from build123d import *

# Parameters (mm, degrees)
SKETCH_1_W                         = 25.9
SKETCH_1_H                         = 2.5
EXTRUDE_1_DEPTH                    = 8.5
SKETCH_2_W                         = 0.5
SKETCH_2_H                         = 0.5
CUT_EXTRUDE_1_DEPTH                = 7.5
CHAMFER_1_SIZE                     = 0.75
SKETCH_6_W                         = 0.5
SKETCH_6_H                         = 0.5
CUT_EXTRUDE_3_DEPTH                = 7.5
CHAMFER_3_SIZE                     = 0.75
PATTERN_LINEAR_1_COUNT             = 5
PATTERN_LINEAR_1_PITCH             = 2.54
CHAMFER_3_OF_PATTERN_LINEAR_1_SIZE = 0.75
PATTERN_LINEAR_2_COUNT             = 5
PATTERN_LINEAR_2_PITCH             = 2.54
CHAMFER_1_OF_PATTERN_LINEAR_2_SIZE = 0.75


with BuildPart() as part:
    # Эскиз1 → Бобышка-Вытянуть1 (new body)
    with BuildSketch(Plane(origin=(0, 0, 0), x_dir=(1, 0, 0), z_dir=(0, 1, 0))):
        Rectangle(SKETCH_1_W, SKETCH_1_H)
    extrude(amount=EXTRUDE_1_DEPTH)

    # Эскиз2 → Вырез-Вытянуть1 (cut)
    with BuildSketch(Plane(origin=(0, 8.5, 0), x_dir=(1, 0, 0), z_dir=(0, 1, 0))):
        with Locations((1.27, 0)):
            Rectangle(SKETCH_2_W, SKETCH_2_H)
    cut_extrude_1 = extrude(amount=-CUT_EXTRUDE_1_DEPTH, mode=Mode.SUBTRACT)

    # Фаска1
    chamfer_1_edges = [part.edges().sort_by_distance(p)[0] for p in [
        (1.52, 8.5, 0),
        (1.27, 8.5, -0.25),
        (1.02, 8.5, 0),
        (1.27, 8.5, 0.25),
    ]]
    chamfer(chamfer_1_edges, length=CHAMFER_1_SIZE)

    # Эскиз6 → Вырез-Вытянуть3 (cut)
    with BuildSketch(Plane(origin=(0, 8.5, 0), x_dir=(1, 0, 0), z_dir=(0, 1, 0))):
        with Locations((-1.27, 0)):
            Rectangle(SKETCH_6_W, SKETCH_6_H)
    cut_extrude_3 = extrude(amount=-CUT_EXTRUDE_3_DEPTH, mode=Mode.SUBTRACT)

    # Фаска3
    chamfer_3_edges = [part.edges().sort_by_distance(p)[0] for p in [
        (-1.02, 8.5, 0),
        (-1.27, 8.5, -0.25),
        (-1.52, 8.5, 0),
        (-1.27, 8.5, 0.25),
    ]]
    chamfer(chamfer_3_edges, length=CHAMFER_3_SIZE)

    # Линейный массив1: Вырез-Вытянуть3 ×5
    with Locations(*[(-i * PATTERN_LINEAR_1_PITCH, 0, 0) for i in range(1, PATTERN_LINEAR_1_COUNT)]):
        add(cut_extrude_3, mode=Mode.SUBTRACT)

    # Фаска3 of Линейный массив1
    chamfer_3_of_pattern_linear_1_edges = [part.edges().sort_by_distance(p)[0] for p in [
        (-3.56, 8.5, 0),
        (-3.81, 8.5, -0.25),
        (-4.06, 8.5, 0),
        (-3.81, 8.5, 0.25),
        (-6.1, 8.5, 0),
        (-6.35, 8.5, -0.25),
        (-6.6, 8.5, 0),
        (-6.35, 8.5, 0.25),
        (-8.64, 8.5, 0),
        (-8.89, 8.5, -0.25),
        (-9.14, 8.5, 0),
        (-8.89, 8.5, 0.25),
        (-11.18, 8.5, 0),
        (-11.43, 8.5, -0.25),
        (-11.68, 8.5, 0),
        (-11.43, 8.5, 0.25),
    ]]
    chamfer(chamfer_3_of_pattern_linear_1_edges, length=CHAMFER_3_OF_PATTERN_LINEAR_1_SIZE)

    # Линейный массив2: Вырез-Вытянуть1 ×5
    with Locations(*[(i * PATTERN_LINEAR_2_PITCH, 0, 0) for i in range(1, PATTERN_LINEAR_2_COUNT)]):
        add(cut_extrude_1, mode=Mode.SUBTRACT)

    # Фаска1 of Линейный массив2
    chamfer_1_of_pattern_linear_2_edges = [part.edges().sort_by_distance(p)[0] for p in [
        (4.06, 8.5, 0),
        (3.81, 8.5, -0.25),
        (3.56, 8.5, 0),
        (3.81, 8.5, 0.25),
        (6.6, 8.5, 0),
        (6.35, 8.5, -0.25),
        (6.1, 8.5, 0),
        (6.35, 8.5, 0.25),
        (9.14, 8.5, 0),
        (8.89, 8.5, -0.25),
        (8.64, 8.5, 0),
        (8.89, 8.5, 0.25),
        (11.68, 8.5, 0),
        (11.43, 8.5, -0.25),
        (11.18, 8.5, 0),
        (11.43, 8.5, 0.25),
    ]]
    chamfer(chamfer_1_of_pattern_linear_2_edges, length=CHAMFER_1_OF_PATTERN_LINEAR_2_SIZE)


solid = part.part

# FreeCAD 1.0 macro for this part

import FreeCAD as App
import Part
import Sketcher
from FreeCAD import Vector


def edges_at(feature, points):
    """Names of the edges that pass closest to the given points."""
    edges = feature.Shape.Edges
    near = lambda p: min(range(len(edges)), key=lambda i: edges[i].distToShape(Part.Vertex(*p))[0])
    return sorted({f"Edge{near(p) + 1}" for p in points})


def add_polygon(sketch, points):
    """Adds a closed chain of lines whose ends are joined by coincident constraints."""
    first, n = sketch.GeometryCount, len(points)
    for a, b in zip(points, points[1:] + points[:1]):
        sketch.addGeometry(Part.LineSegment(App.Vector(*a, 0), App.Vector(*b, 0)), False)
    for i in range(n):
        sketch.addConstraint(Sketcher.Constraint("Coincident", first + i, 2, first + (i + 1) % n, 1))

doc = App.newDocument("Part")
params = doc.addObject("Spreadsheet::Sheet", "Params")
for row, (alias, value) in enumerate([
    ("sketch1_width", "25.9 mm"),
    ("sketch1_height", "2.5 mm"),
    ("pad1_length", "8.5 mm"),
    ("sketch2_width", "0.5 mm"),
    ("pocket1_length", "7.5 mm"),
    ("chamfer_size", "0.75 mm"),
    ("sketch3_width", "0.5 mm"),
    ("pocket2_length", "7.5 mm"),
    ("chamfer2_size", "0.75 mm"),
    ("linearpattern_pitch", "2.54 mm"),
    ("chamfer3_size", "0.75 mm"),
    ("linearpattern2_pitch", "2.54 mm"),
    ("chamfer4_size", "0.75 mm"),
], start=1):
    params.set(f"A{row}", alias)
    params.set(f"B{row}", "=" + value)
    params.setAlias(f"B{row}", alias)

body = doc.addObject("PartDesign::Body", "Body")

sketch1 = body.newObject("Sketcher::SketchObject", "Sketch")
sketch1.AttachmentSupport = (doc.getObject("XZ_Plane"), [""])
sketch1.MapMode = "FlatFace"
add_polygon(sketch1, [(-12.95, -1.25), (-12.95, 1.25), (12.95, 1.25), (12.95, -1.25)])
sketch1.addConstraint([
    Sketcher.Constraint("Vertical", 0),
    Sketcher.Constraint("Horizontal", 1),
    Sketcher.Constraint("Vertical", 2),
    Sketcher.Constraint("Horizontal", 3),
    Sketcher.Constraint("Symmetric", 0, 2, 2, 2, -1, 1),
    Sketcher.Constraint("DistanceX", 1, 1, 1, 2, 25.9),
    Sketcher.Constraint("DistanceY", 0, 1, 0, 2, 2.5),
])
sketch1.setExpression("Constraints[9]", "Params.sketch1_width")
sketch1.setExpression("Constraints[10]", "Params.sketch1_height")
pad1 = body.newObject("PartDesign::Pad", "Pad")
pad1.Profile = sketch1
pad1.setExpression("Length", "Params.pad1_length")
pad1.Reversed = True

sketch2 = body.newObject("Sketcher::SketchObject", "Sketch001")
sketch2.AttachmentSupport = (doc.getObject("XZ_Plane"), [""])
sketch2.MapMode = "FlatFace"
sketch2.AttachmentOffset = App.Placement(Vector(0, 0, -8.5), App.Rotation())
add_polygon(sketch2, [(1.02, -0.25), (1.02, 0.25), (1.52, 0.25), (1.52, -0.25)])
sketch2.addConstraint([
    Sketcher.Constraint("Vertical", 0),
    Sketcher.Constraint("Horizontal", 1),
    Sketcher.Constraint("Vertical", 2),
    Sketcher.Constraint("Horizontal", 3),
    Sketcher.Constraint("Equal", 3, 0),
    Sketcher.Constraint("DistanceX", 1, 1, 1, 2, 0.5),
    Sketcher.Constraint("DistanceX", -1, 1, 0, 2, 1.02),
    Sketcher.Constraint("DistanceY", -1, 1, 0, 2, 0.25),
])
sketch2.setExpression("Constraints[9]", "Params.sketch2_width")
pocket1 = body.newObject("PartDesign::Pocket", "Pocket")
pocket1.Profile = sketch2
pocket1.setExpression("Length", "Params.pocket1_length")
pocket1.Reversed = True
doc.recompute()

chamfer = body.newObject("PartDesign::Chamfer", "Chamfer")
chamfer.Base = (pocket1, edges_at(pocket1, [
    (1.52, 8.5, 0),
    (1.27, 8.5, -0.25),
    (1.02, 8.5, 0),
    (1.27, 8.5, 0.25),
]))
chamfer.setExpression("Size", "Params.chamfer_size")

sketch3 = body.newObject("Sketcher::SketchObject", "Sketch002")
sketch3.AttachmentSupport = (doc.getObject("XZ_Plane"), [""])
sketch3.MapMode = "FlatFace"
sketch3.AttachmentOffset = App.Placement(Vector(0, 0, -8.5), App.Rotation())
add_polygon(sketch3, [(-1.52, -0.25), (-1.52, 0.25), (-1.02, 0.25), (-1.02, -0.25)])
sketch3.addConstraint([
    Sketcher.Constraint("Vertical", 0),
    Sketcher.Constraint("Horizontal", 1),
    Sketcher.Constraint("Vertical", 2),
    Sketcher.Constraint("Horizontal", 3),
    Sketcher.Constraint("Equal", 3, 0),
    Sketcher.Constraint("DistanceX", 1, 1, 1, 2, 0.5),
    Sketcher.Constraint("DistanceX", 0, 2, -1, 1, 1.52),
    Sketcher.Constraint("DistanceY", -1, 1, 0, 2, 0.25),
])
sketch3.setExpression("Constraints[9]", "Params.sketch3_width")
pocket2 = body.newObject("PartDesign::Pocket", "Pocket001")
pocket2.Profile = sketch3
pocket2.setExpression("Length", "Params.pocket2_length")
pocket2.Reversed = True
doc.recompute()

chamfer2 = body.newObject("PartDesign::Chamfer", "Chamfer001")
chamfer2.Base = (pocket2, edges_at(pocket2, [
    (-1.02, 8.5, 0),
    (-1.27, 8.5, -0.25),
    (-1.52, 8.5, 0),
    (-1.27, 8.5, 0.25),
]))
chamfer2.setExpression("Size", "Params.chamfer2_size")
doc.recompute()

linearpattern = body.newObject("PartDesign::LinearPattern", "LinearPattern")
linearpattern.Originals = [pocket2]
linearpattern.Direction = (doc.getObject("X_Axis"), [""])
linearpattern.Mode = "offset"
linearpattern.setExpression("Offset", "Params.linearpattern_pitch")
linearpattern.Occurrences = 5
linearpattern.Reversed = True
body.Tip = linearpattern
doc.recompute()

chamfer3 = body.newObject("PartDesign::Chamfer", "Chamfer002")
chamfer3.Base = (linearpattern, edges_at(linearpattern, [
    (-3.56, 8.5, 0),
    (-3.81, 8.5, -0.25),
    (-4.06, 8.5, 0),
    (-3.81, 8.5, 0.25),
    (-6.1, 8.5, 0),
    (-6.35, 8.5, -0.25),
    (-6.6, 8.5, 0),
    (-6.35, 8.5, 0.25),
    (-8.64, 8.5, 0),
    (-8.89, 8.5, -0.25),
    (-9.14, 8.5, 0),
    (-8.89, 8.5, 0.25),
    (-11.18, 8.5, 0),
    (-11.43, 8.5, -0.25),
    (-11.68, 8.5, 0),
    (-11.43, 8.5, 0.25),
]))
chamfer3.setExpression("Size", "Params.chamfer3_size")
doc.recompute()

linearpattern2 = body.newObject("PartDesign::LinearPattern", "LinearPattern001")
linearpattern2.Originals = [pocket1]
linearpattern2.Direction = (doc.getObject("X_Axis"), [""])
linearpattern2.Mode = "offset"
linearpattern2.setExpression("Offset", "Params.linearpattern2_pitch")
linearpattern2.Occurrences = 5
body.Tip = linearpattern2
doc.recompute()

chamfer4 = body.newObject("PartDesign::Chamfer", "Chamfer003")
chamfer4.Base = (linearpattern2, edges_at(linearpattern2, [
    (4.06, 8.5, 0),
    (3.81, 8.5, -0.25),
    (3.56, 8.5, 0),
    (3.81, 8.5, 0.25),
    (6.6, 8.5, 0),
    (6.35, 8.5, -0.25),
    (6.1, 8.5, 0),
    (6.35, 8.5, 0.25),
    (9.14, 8.5, 0),
    (8.89, 8.5, -0.25),
    (8.64, 8.5, 0),
    (8.89, 8.5, 0.25),
    (11.68, 8.5, 0),
    (11.43, 8.5, -0.25),
    (11.18, 8.5, 0),
    (11.43, 8.5, 0.25),
]))
chamfer4.setExpression("Size", "Params.chamfer4_size")

doc.recompute()
